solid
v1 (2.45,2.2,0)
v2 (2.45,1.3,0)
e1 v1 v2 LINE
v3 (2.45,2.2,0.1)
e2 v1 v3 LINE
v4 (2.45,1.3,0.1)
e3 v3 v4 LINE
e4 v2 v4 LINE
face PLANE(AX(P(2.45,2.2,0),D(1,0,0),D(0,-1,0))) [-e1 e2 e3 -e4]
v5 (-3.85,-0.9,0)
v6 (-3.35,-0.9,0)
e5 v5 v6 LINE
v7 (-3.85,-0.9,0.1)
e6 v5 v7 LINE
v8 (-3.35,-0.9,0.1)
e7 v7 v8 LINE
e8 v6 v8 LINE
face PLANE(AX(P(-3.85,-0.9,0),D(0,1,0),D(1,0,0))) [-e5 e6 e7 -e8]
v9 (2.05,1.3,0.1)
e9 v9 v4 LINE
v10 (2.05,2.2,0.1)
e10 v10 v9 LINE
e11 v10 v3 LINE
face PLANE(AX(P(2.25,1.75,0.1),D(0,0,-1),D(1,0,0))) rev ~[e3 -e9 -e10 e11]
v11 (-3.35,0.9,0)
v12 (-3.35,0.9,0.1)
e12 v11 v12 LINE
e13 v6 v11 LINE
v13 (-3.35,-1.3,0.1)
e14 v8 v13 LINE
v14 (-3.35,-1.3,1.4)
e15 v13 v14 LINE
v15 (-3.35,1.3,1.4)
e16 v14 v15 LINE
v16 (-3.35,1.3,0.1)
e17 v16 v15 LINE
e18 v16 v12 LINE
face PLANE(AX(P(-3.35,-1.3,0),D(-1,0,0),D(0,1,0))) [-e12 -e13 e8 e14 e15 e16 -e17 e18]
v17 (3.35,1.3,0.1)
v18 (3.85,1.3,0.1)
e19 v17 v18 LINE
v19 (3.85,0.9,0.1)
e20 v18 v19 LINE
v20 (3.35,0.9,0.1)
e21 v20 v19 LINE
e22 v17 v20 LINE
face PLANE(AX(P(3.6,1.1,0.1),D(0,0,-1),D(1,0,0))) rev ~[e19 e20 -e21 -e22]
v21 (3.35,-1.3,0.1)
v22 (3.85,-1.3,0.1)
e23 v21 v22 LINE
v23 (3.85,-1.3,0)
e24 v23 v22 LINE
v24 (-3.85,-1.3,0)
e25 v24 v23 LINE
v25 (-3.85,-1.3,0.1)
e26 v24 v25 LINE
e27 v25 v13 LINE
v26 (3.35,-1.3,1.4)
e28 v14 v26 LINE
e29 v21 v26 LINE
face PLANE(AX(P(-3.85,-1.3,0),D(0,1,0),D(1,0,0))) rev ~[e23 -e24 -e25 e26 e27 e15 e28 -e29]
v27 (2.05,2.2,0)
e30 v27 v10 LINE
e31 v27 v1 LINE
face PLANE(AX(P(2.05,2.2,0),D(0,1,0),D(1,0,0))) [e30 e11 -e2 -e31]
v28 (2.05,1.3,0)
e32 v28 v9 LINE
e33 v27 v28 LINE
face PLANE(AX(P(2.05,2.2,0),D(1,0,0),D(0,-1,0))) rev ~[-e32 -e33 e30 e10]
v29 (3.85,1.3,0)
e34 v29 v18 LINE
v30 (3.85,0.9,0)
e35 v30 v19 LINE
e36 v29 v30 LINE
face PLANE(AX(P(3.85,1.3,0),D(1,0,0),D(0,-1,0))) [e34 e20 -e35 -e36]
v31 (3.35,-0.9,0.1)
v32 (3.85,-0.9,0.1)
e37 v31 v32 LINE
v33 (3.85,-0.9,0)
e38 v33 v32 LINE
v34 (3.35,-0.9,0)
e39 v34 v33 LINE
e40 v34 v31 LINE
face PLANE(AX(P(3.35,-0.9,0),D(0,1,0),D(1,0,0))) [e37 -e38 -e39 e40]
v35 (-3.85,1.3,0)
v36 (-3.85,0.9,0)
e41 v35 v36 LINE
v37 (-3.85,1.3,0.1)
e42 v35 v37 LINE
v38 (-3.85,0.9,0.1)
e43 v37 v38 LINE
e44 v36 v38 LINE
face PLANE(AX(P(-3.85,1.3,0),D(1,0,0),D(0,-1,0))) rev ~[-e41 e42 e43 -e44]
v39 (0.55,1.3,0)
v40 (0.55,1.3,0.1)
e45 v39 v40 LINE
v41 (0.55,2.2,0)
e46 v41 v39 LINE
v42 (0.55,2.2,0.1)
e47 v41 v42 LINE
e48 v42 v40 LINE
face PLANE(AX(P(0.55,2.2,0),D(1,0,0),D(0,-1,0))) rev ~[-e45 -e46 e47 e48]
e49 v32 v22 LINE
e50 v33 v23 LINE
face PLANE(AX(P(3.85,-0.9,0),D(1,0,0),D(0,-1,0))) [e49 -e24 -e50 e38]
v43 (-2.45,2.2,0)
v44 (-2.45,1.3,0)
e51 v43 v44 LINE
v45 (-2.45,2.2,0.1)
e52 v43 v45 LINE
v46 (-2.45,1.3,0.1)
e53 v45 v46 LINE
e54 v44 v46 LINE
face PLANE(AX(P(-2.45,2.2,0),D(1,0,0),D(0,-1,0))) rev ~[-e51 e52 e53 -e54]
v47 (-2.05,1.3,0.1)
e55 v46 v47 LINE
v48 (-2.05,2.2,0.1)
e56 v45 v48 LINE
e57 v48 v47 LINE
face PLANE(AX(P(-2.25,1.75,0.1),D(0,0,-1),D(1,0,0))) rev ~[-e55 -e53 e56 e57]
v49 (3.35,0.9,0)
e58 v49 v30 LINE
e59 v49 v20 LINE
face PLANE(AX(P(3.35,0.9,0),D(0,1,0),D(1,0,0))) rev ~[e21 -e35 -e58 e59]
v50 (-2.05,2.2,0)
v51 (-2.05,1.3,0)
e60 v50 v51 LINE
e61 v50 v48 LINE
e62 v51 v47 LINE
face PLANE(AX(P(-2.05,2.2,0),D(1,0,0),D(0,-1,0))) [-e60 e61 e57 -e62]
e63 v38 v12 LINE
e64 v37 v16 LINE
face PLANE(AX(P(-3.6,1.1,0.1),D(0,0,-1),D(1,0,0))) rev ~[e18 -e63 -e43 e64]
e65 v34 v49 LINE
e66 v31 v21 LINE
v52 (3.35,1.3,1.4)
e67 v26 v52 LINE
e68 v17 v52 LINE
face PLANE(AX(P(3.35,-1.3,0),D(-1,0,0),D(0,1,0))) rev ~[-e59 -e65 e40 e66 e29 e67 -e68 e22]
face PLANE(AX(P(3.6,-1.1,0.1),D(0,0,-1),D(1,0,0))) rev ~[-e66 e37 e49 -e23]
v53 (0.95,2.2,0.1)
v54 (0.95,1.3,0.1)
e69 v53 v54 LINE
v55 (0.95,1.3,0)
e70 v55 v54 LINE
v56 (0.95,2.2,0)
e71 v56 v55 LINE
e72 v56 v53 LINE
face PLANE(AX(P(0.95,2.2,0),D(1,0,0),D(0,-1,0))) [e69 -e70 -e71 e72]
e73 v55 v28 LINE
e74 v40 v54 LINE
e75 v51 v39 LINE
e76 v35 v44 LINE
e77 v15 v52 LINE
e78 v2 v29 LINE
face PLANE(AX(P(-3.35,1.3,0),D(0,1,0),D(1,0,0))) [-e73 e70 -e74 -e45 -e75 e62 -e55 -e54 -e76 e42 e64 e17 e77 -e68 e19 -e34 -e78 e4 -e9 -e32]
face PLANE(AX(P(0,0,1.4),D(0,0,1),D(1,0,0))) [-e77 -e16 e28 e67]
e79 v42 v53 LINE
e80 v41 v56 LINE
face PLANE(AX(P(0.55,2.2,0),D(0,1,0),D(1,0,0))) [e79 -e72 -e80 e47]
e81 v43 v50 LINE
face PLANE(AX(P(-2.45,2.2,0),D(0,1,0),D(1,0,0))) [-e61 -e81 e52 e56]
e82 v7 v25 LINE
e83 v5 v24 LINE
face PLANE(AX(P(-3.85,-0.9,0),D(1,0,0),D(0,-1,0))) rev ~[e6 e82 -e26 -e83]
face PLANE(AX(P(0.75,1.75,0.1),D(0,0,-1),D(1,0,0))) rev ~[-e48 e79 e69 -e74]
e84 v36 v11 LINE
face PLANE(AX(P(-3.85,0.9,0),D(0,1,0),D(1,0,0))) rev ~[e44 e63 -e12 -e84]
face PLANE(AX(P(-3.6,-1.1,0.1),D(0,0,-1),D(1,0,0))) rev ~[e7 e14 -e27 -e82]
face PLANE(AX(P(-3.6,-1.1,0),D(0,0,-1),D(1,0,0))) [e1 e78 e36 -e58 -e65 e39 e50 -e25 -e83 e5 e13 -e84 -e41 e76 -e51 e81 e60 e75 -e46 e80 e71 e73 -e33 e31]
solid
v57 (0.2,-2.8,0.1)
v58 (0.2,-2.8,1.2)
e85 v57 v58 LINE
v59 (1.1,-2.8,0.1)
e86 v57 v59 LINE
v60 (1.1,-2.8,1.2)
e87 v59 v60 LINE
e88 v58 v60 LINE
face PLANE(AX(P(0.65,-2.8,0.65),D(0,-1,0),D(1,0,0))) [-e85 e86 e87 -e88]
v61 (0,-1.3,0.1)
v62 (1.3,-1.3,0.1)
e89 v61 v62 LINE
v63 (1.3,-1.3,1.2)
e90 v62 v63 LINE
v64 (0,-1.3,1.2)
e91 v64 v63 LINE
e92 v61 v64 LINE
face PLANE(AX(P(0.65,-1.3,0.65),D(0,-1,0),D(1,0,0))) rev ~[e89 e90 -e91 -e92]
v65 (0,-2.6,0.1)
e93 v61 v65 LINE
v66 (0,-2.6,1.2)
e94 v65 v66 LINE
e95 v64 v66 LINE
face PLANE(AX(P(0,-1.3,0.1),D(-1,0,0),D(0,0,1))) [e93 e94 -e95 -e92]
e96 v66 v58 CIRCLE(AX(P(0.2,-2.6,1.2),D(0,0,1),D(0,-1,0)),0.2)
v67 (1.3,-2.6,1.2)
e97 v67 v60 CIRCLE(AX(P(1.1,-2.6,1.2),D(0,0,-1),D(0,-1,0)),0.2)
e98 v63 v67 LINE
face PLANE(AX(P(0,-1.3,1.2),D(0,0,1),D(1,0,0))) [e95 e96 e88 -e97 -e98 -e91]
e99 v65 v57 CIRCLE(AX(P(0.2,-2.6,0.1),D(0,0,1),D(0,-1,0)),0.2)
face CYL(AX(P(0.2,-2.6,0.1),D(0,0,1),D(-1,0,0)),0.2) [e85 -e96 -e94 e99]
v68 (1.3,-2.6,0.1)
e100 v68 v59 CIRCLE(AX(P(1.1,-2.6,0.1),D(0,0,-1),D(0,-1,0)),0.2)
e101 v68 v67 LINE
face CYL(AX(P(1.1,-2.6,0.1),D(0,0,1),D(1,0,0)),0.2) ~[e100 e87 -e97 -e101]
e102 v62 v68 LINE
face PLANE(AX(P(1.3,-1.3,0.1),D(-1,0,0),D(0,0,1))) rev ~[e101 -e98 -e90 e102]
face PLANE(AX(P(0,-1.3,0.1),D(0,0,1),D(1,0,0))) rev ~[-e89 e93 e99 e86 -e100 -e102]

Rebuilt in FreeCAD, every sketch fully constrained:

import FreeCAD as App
import Part
import Sketcher
from FreeCAD import Vector
Q = App.Units.Quantity


def edges_at(feature, points):
    """Names of the edges that pass closest to the given points."""
    edges = feature.Shape.Edges
    near = lambda p: min(range(len(edges)), key=lambda i: edges[i].distToShape(Part.Vertex(*p))[0])
    return sorted({f"Edge{near(p) + 1}" for p in points})

doc = App.newDocument("Part")
params = doc.addObject("Spreadsheet::Sheet", "Params")
for row, (alias, value) in enumerate([
    ("sketch1_width", "6.7 mm"),
    ("sketch1_height", "2.6 mm"),
    ("pad1_length", "1.4 mm"),
    ("sketch2_width", "0.5 mm"),
    ("sketch2_width2", "0.4 mm"),
    ("sketch2_height", "0.9 mm"),
    ("pad2_length", "0.1 mm"),
    ("sketch3_width", "1.3 mm"),
    ("sketch3_height", "1.1 mm"),
    ("pad3_length", "1.5 mm"),
    ("fillet_radius", "0.2 mm"),
], start=1):
    params.set(f"A{row}", alias)
    params.set(f"B{row}", "=" + value)
    params.setAlias(f"B{row}", alias)

body = doc.addObject("PartDesign::Body", "Body")

sketch1 = doc.addObject("Sketcher::SketchObject", "Sketch")
body.addObject(sketch1)
sketch1.AttachmentSupport = (doc.XY_Plane, [""])
sketch1.MapMode = "FlatFace"
sketch1.addGeometry(Part.LineSegment(Vector(-3.4, 1.3, 0), Vector(-3.4, -1.3, 0)), False)
sketch1.addGeometry(Part.LineSegment(Vector(-3.4, -1.3, 0), Vector(3.4, -1.3, 0)), False)
sketch1.addGeometry(Part.LineSegment(Vector(3.4, -1.3, 0), Vector(3.4, 1.3, 0)), False)
sketch1.addGeometry(Part.LineSegment(Vector(3.4, 1.3, 0), Vector(-3.4, 1.3, 0)), False)
sketch1.addConstraint(Sketcher.Constraint("Coincident", 0, 2, 1, 1))
sketch1.addConstraint(Sketcher.Constraint("Coincident", 1, 2, 2, 1))
sketch1.addConstraint(Sketcher.Constraint("Coincident", 2, 2, 3, 1))
sketch1.addConstraint(Sketcher.Constraint("Coincident", 3, 2, 0, 1))
sketch1.addConstraint(Sketcher.Constraint("Vertical", 0))
sketch1.addConstraint(Sketcher.Constraint("Horizontal", 1))
sketch1.addConstraint(Sketcher.Constraint("Vertical", 2))
sketch1.addConstraint(Sketcher.Constraint("Horizontal", 3))
sketch1.addConstraint(Sketcher.Constraint("Symmetric", 0, 2, 2, 2, -1, 1))
sketch1.addConstraint(Sketcher.Constraint("DistanceX", 1, 1, 1, 2, Q("6.7 mm")))
sketch1.addConstraint(Sketcher.Constraint("DistanceY", 0, 2, 0, 1, Q("2.6 mm")))
sketch1.setExpression("Constraints[9]", "Params.sketch1_width")
sketch1.setExpression("Constraints[10]", "Params.sketch1_height")
pad1 = doc.addObject("PartDesign::Pad", "Pad")
body.addObject(pad1)
pad1.Profile = sketch1
pad1.setExpression("Length", "Params.pad1_length")

sketch2 = doc.addObject("Sketcher::SketchObject", "Sketch001")
body.addObject(sketch2)
sketch2.AttachmentSupport = (doc.XY_Plane, [""])
sketch2.MapMode = "FlatFace"
sketch2.addGeometry(Part.LineSegment(Vector(-3.85, -1.3, 0), Vector(-3.85, -0.9, 0)), False)
sketch2.addGeometry(Part.LineSegment(Vector(-3.85, -0.9, 0), Vector(-3.35, -0.9, 0)), False)
sketch2.addGeometry(Part.LineSegment(Vector(-3.35, -0.9, 0), Vector(-3.35, -1.3, 0)), False)
sketch2.addGeometry(Part.LineSegment(Vector(-3.35, -1.3, 0), Vector(-3.85, -1.3, 0)), False)
sketch2.addGeometry(Part.LineSegment(Vector(-3.85, 0.9, 0), Vector(-3.85, 1.3, 0)), False)
sketch2.addGeometry(Part.LineSegment(Vector(-3.85, 1.3, 0), Vector(-3.35, 1.3, 0)), False)
sketch2.addGeometry(Part.LineSegment(Vector(-3.35, 1.3, 0), Vector(-3.35, 0.9, 0)), False)
sketch2.addGeometry(Part.LineSegment(Vector(-3.35, 0.9, 0), Vector(-3.85, 0.9, 0)), False)
sketch2.addGeometry(Part.LineSegment(Vector(3.35, 0.9, 0), Vector(3.35, 1.3, 0)), False)
sketch2.addGeometry(Part.LineSegment(Vector(3.35, 1.3, 0), Vector(3.85, 1.3, 0)), False)
sketch2.addGeometry(Part.LineSegment(Vector(3.85, 1.3, 0), Vector(3.85, 0.9, 0)), False)
sketch2.addGeometry(Part.LineSegment(Vector(3.85, 0.9, 0), Vector(3.35, 0.9, 0)), False)
sketch2.addGeometry(Part.LineSegment(Vector(3.35, -1.3, 0), Vector(3.35, -0.9, 0)), False)
sketch2.addGeometry(Part.LineSegment(Vector(3.35, -0.9, 0), Vector(3.85, -0.9, 0)), False)
sketch2.addGeometry(Part.LineSegment(Vector(3.85, -0.9, 0), Vector(3.85, -1.3, 0)), False)
sketch2.addGeometry(Part.LineSegment(Vector(3.85, -1.3, 0), Vector(3.35, -1.3, 0)), False)
sketch2.addGeometry(Part.LineSegment(Vector(0.55, 1.3, 0), Vector(0.55, 2.2, 0)), False)
sketch2.addGeometry(Part.LineSegment(Vector(0.55, 2.2, 0), Vector(0.95, 2.2, 0)), False)
sketch2.addGeometry(Part.LineSegment(Vector(0.95, 2.2, 0), Vector(0.95, 1.3, 0)), False)
sketch2.addGeometry(Part.LineSegment(Vector(0.95, 1.3, 0), Vector(0.55, 1.3, 0)), False)
sketch2.addGeometry(Part.LineSegment(Vector(2.05, 1.3, 0), Vector(2.05, 2.2, 0)), False)
sketch2.addGeometry(Part.LineSegment(Vector(2.05, 2.2, 0), Vector(2.45, 2.2, 0)), False)
sketch2.addGeometry(Part.LineSegment(Vector(2.45, 2.2, 0), Vector(2.45, 1.3, 0)), False)
sketch2.addGeometry(Part.LineSegment(Vector(2.45, 1.3, 0), Vector(2.05, 1.3, 0)), False)
sketch2.addGeometry(Part.LineSegment(Vector(-2.45, 1.3, 0), Vector(-2.45, 2.2, 0)), False)
sketch2.addGeometry(Part.LineSegment(Vector(-2.45, 2.2, 0), Vector(-2.05, 2.2, 0)), False)
sketch2.addGeometry(Part.LineSegment(Vector(-2.05, 2.2, 0), Vector(-2.05, 1.3, 0)), False)
sketch2.addGeometry(Part.LineSegment(Vector(-2.05, 1.3, 0), Vector(-2.45, 1.3, 0)), False)
sketch2.addConstraint(Sketcher.Constraint("Coincident", 0, 2, 1, 1))
sketch2.addConstraint(Sketcher.Constraint("Coincident", 1, 2, 2, 1))
sketch2.addConstraint(Sketcher.Constraint("Coincident", 2, 2, 3, 1))
sketch2.addConstraint(Sketcher.Constraint("Coincident", 3, 2, 0, 1))
sketch2.addConstraint(Sketcher.Constraint("Coincident", 4, 2, 5, 1))
sketch2.addConstraint(Sketcher.Constraint("Coincident", 5, 2, 6, 1))
sketch2.addConstraint(Sketcher.Constraint("Coincident", 6, 2, 7, 1))
sketch2.addConstraint(Sketcher.Constraint("Coincident", 7, 2, 4, 1))
sketch2.addConstraint(Sketcher.Constraint("Coincident", 8, 2, 9, 1))
sketch2.addConstraint(Sketcher.Constraint("Coincident", 9, 2, 10, 1))
sketch2.addConstraint(Sketcher.Constraint("Coincident", 10, 2, 11, 1))
sketch2.addConstraint(Sketcher.Constraint("Coincident", 11, 2, 8, 1))
sketch2.addConstraint(Sketcher.Constraint("Coincident", 12, 2, 13, 1))
sketch2.addConstraint(Sketcher.Constraint("Coincident", 13, 2, 14, 1))
sketch2.addConstraint(Sketcher.Constraint("Coincident", 14, 2, 15, 1))
sketch2.addConstraint(Sketcher.Constraint("Coincident", 15, 2, 12, 1))
sketch2.addConstraint(Sketcher.Constraint("Coincident", 16, 2, 17, 1))
sketch2.addConstraint(Sketcher.Constraint("Coincident", 17, 2, 18, 1))
sketch2.addConstraint(Sketcher.Constraint("Coincident", 18, 2, 19, 1))
sketch2.addConstraint(Sketcher.Constraint("Coincident", 19, 2, 16, 1))
sketch2.addConstraint(Sketcher.Constraint("Coincident", 20, 2, 21, 1))
sketch2.addConstraint(Sketcher.Constraint("Coincident", 21, 2, 22, 1))
sketch2.addConstraint(Sketcher.Constraint("Coincident", 22, 2, 23, 1))
sketch2.addConstraint(Sketcher.Constraint("Coincident", 23, 2, 20, 1))
sketch2.addConstraint(Sketcher.Constraint("Coincident", 24, 2, 25, 1))
sketch2.addConstraint(Sketcher.Constraint("Coincident", 25, 2, 26, 1))
sketch2.addConstraint(Sketcher.Constraint("Coincident", 26, 2, 27, 1))
sketch2.addConstraint(Sketcher.Constraint("Coincident", 27, 2, 24, 1))
sketch2.addConstraint(Sketcher.Constraint("Vertical", 0))
sketch2.addConstraint(Sketcher.Constraint("Horizontal", 1))
sketch2.addConstraint(Sketcher.Constraint("Vertical", 2))
sketch2.addConstraint(Sketcher.Constraint("Horizontal", 3))
sketch2.addConstraint(Sketcher.Constraint("Vertical", 4))
sketch2.addConstraint(Sketcher.Constraint("Horizontal", 5))
sketch2.addConstraint(Sketcher.Constraint("Vertical", 6))
sketch2.addConstraint(Sketcher.Constraint("Horizontal", 7))
sketch2.addConstraint(Sketcher.Constraint("Vertical", 8))
sketch2.addConstraint(Sketcher.Constraint("Horizontal", 9))
sketch2.addConstraint(Sketcher.Constraint("Vertical", 10))
sketch2.addConstraint(Sketcher.Constraint("Horizontal", 11))
sketch2.addConstraint(Sketcher.Constraint("Vertical", 12))
sketch2.addConstraint(Sketcher.Constraint("Horizontal", 13))
sketch2.addConstraint(Sketcher.Constraint("Vertical", 14))
sketch2.addConstraint(Sketcher.Constraint("Horizontal", 15))
sketch2.addConstraint(Sketcher.Constraint("Vertical", 16))
sketch2.addConstraint(Sketcher.Constraint("Horizontal", 17))
sketch2.addConstraint(Sketcher.Constraint("Vertical", 18))
sketch2.addConstraint(Sketcher.Constraint("Horizontal", 19))
sketch2.addConstraint(Sketcher.Constraint("Vertical", 20))
sketch2.addConstraint(Sketcher.Constraint("Horizontal", 21))
sketch2.addConstraint(Sketcher.Constraint("Vertical", 22))
sketch2.addConstraint(Sketcher.Constraint("Horizontal", 23))
sketch2.addConstraint(Sketcher.Constraint("Vertical", 24))
sketch2.addConstraint(Sketcher.Constraint("Horizontal", 25))
sketch2.addConstraint(Sketcher.Constraint("Vertical", 26))
sketch2.addConstraint(Sketcher.Constraint("Horizontal", 27))
sketch2.addConstraint(Sketcher.Constraint("Symmetric", 2, 2, 8, 2, -1, 1))
sketch2.addConstraint(Sketcher.Constraint("Symmetric", 0, 2, 10, 2, -1, 1))
sketch2.addConstraint(Sketcher.Constraint("Symmetric", 6, 2, 12, 2, -1, 1))
sketch2.addConstraint(Sketcher.Constraint("Symmetric", 4, 2, 14, 2, -1, 1))
sketch2.addConstraint(Sketcher.Constraint("Symmetric", 5, 2, 8, 2, -2))
sketch2.addConstraint(Sketcher.Constraint("Symmetric", 7, 2, 10, 2, -2))
sketch2.addConstraint(Sketcher.Constraint("Symmetric", 21, 2, 24, 2, -2))
sketch2.addConstraint(Sketcher.Constraint("Symmetric", 23, 2, 26, 2, -2))
sketch2.addConstraint(Sketcher.Constraint("Horizontal", 9, 2, 18, 2))
sketch2.addConstraint(Sketcher.Constraint("Horizontal", 17, 2, 20, 2))
sketch2.addConstraint(Sketcher.Constraint("Horizontal", 19, 2, 22, 2))
sketch2.addConstraint(Sketcher.Constraint("Equal", 19, 21))
sketch2.addConstraint(Sketcher.Constraint("Equal", 27, 0))
sketch2.addConstraint(Sketcher.Constraint("DistanceX", 1, 1, 1, 2, Q("0.5 mm")))
sketch2.addConstraint(Sketcher.Constraint("DistanceX", 17, 1, 17, 2, Q("0.4 mm")))
sketch2.addConstraint(Sketcher.Constraint("DistanceY", 16, 1, 16, 2, Q("0.9 mm")))
sketch2.addConstraint(Sketcher.Constraint("DistanceX", 24, 2, 16, 2, Q("3 mm")))
sketch2.addConstraint(Sketcher.Constraint("DistanceY", 0, 2, -1, 1, Q("0.9 mm")))
sketch2.addConstraint(Sketcher.Constraint("DistanceX", 5, 2, 8, 2, Q("6.7 mm")))
sketch2.addConstraint(Sketcher.Constraint("DistanceX", 16, 2, 8, 2, Q("2.8 mm")))
sketch2.setExpression("Constraints[69]", "Params.sketch2_width")
sketch2.setExpression("Constraints[70]", "Params.sketch2_width2")
sketch2.setExpression("Constraints[71]", "Params.sketch2_height")
pad2 = doc.addObject("PartDesign::Pad", "Pad001")
body.addObject(pad2)
pad2.Profile = sketch2
pad2.setExpression("Length", "Params.pad2_length")
body2 = doc.addObject("PartDesign::Body", "Body001")

sketch3 = doc.addObject("Sketcher::SketchObject", "Sketch002")
body2.addObject(sketch3)
sketch3.AttachmentSupport = (doc.getObject("XZ_Plane001"), [""])
sketch3.MapMode = "FlatFace"
sketch3.AttachmentOffset = App.Placement(Vector(0, 0, 1.3), App.Rotation())
sketch3.addGeometry(Part.LineSegment(Vector(0, 1.2, 0), Vector(0, 0.1, 0)), False)
sketch3.addGeometry(Part.LineSegment(Vector(0, 0.1, 0), Vector(1.3, 0.1, 0)), False)
sketch3.addGeometry(Part.LineSegment(Vector(1.3, 0.1, 0), Vector(1.3, 1.2, 0)), False)
sketch3.addGeometry(Part.LineSegment(Vector(1.3, 1.2, 0), Vector(0, 1.2, 0)), False)
sketch3.addConstraint(Sketcher.Constraint("Coincident", 0, 2, 1, 1))
sketch3.addConstraint(Sketcher.Constraint("Coincident", 1, 2, 2, 1))
sketch3.addConstraint(Sketcher.Constraint("Coincident", 2, 2, 3, 1))
sketch3.addConstraint(Sketcher.Constraint("Coincident", 3, 2, 0, 1))
sketch3.addConstraint(Sketcher.Constraint("Vertical", 0))
sketch3.addConstraint(Sketcher.Constraint("Horizontal", 1))
sketch3.addConstraint(Sketcher.Constraint("Vertical", 2))
sketch3.addConstraint(Sketcher.Constraint("Horizontal", 3))
sketch3.addConstraint(Sketcher.Constraint("PointOnObject", 0, 2, -2))
sketch3.addConstraint(Sketcher.Constraint("DistanceX", 1, 1, 1, 2, Q("1.3 mm")))
sketch3.addConstraint(Sketcher.Constraint("DistanceY", 0, 2, 0, 1, Q("1.1 mm")))
sketch3.addConstraint(Sketcher.Constraint("DistanceY", -1, 1, 0, 2, Q("0.1 mm")))
sketch3.setExpression("Constraints[9]", "Params.sketch3_width")
sketch3.setExpression("Constraints[10]", "Params.sketch3_height")
pad3 = doc.addObject("PartDesign::Pad", "Pad002")
body2.addObject(pad3)
pad3.Profile = sketch3
pad3.setExpression("Length", "Params.pad3_length")
doc.recompute()

fillet = doc.addObject("PartDesign::Fillet", "Fillet")
body2.addObject(fillet)
fillet.Base = (pad3, edges_at(pad3, [(0, -2.8, 0.65), (1.3, -2.8, 0.65)]))
fillet.setExpression("Radius", "Params.fillet_radius")

doc.recompute()
